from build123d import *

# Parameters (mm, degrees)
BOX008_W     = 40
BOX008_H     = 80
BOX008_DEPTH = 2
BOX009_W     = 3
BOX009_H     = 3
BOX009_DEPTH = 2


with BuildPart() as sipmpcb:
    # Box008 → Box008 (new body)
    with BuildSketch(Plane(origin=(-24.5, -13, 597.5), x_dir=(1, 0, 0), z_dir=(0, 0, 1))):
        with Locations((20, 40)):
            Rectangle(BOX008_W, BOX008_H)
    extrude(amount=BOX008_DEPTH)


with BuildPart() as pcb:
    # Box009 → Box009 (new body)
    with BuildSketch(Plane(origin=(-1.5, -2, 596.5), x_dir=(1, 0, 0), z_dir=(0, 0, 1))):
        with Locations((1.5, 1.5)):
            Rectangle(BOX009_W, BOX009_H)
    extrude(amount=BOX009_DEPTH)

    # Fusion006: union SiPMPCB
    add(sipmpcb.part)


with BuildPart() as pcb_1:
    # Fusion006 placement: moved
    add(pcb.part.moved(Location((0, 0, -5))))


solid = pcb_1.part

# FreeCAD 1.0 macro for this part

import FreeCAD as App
import Part
import Sketcher

V = App.Vector
Q = App.Units.Quantity


def add_polygon(sketch, points):
    """Adds a closed chain of lines whose ends are joined by coincident constraints."""
    first, n = sketch.GeometryCount, len(points)
    for a, b in zip(points, points[1:] + points[:1]):
        sketch.addGeometry(Part.LineSegment(App.Vector(*a, 0), App.Vector(*b, 0)), False)
    for i in range(n):
        sketch.addConstraint(Sketcher.Constraint("Coincident", first + i, 2, first + (i + 1) % n, 1))

doc = App.newDocument("Part")
body = doc.addObject("PartDesign::Body", "Body")

# Sketch on XY plane
sketch1 = doc.addObject("Sketcher::SketchObject", "Sketch")
body.addObject(sketch1)
sketch1.AttachmentSupport = (doc.XY_Plane, [""])
sketch1.MapMode = "FlatFace"
sketch1.AttachmentOffset = App.Placement(V(0, 0, 597.5), App.Rotation())
add_polygon(sketch1, [(-24.5, 67), (-24.5, -13), (15.5, -13), (15.5, 67)])  # lines 0-3
sketch1.addConstraint(Sketcher.Constraint("Vertical", 0))
sketch1.addConstraint(Sketcher.Constraint("Horizontal", 1))
sketch1.addConstraint(Sketcher.Constraint("Vertical", 2))
sketch1.addConstraint(Sketcher.Constraint("Horizontal", 3))
sketch1.addConstraint(Sketcher.Constraint("DistanceX", 1, 1, 1, 2, Q("40 mm")))
sketch1.addConstraint(Sketcher.Constraint("DistanceY", 0, 2, 0, 1, Q("80 mm")))
sketch1.addConstraint(Sketcher.Constraint("DistanceY", 0, 2, -1, 1, Q("13 mm")))
sketch1.addConstraint(Sketcher.Constraint("DistanceX", 0, 2, -1, 1, Q("24.5 mm")))
pad1 = doc.addObject("PartDesign::Pad", "Pad")
body.addObject(pad1)
pad1.Profile = sketch1
pad1.Length = 2
body2 = doc.addObject("PartDesign::Body", "Body001")

# Sketch on XY plane
sketch2 = doc.addObject("Sketcher::SketchObject", "Sketch001")
body2.addObject(sketch2)
sketch2.AttachmentSupport = (doc.getObject("XY_Plane001"), [""])
sketch2.MapMode = "FlatFace"
sketch2.AttachmentOffset = App.Placement(V(0, 0, 596.5), App.Rotation())
add_polygon(sketch2, [(-1.5, 1), (-1.5, -2), (1.5, -2), (1.5, 1)])  # lines 0-3
sketch2.addConstraint(Sketcher.Constraint("Vertical", 0))
sketch2.addConstraint(Sketcher.Constraint("Horizontal", 1))
sketch2.addConstraint(Sketcher.Constraint("Vertical", 2))
sketch2.addConstraint(Sketcher.Constraint("Horizontal", 3))
sketch2.addConstraint(Sketcher.Constraint("Equal", 3, 0))
sketch2.addConstraint(Sketcher.Constraint("DistanceX", 1, 1, 1, 2, Q("3 mm")))
sketch2.addConstraint(Sketcher.Constraint("DistanceY", 0, 2, -1, 1, Q("2 mm")))
sketch2.addConstraint(Sketcher.Constraint("DistanceX", 0, 2, -1, 1, Q("1.5 mm")))
pad2 = doc.addObject("PartDesign::Pad", "Pad001")
body2.addObject(pad2)
pad2.Profile = sketch2
pad2.Length = 2
doc.recompute()

boolean = doc.addObject("PartDesign::Boolean", "Boolean")
body2.addObject(boolean)
boolean.Type = "Fuse"
boolean.addObjects([body])
body3 = doc.addObject("PartDesign::Body", "Body002")
doc.recompute()

body2.Placement = App.Placement(V(0, 0, -5), App.Rotation(V(0, 0, 1), 0))
boolean2 = doc.addObject("PartDesign::Boolean", "Boolean001")
body3.addObject(boolean2)
boolean2.Type = "Fuse"
boolean2.addObjects([body2])

doc.recompute()
